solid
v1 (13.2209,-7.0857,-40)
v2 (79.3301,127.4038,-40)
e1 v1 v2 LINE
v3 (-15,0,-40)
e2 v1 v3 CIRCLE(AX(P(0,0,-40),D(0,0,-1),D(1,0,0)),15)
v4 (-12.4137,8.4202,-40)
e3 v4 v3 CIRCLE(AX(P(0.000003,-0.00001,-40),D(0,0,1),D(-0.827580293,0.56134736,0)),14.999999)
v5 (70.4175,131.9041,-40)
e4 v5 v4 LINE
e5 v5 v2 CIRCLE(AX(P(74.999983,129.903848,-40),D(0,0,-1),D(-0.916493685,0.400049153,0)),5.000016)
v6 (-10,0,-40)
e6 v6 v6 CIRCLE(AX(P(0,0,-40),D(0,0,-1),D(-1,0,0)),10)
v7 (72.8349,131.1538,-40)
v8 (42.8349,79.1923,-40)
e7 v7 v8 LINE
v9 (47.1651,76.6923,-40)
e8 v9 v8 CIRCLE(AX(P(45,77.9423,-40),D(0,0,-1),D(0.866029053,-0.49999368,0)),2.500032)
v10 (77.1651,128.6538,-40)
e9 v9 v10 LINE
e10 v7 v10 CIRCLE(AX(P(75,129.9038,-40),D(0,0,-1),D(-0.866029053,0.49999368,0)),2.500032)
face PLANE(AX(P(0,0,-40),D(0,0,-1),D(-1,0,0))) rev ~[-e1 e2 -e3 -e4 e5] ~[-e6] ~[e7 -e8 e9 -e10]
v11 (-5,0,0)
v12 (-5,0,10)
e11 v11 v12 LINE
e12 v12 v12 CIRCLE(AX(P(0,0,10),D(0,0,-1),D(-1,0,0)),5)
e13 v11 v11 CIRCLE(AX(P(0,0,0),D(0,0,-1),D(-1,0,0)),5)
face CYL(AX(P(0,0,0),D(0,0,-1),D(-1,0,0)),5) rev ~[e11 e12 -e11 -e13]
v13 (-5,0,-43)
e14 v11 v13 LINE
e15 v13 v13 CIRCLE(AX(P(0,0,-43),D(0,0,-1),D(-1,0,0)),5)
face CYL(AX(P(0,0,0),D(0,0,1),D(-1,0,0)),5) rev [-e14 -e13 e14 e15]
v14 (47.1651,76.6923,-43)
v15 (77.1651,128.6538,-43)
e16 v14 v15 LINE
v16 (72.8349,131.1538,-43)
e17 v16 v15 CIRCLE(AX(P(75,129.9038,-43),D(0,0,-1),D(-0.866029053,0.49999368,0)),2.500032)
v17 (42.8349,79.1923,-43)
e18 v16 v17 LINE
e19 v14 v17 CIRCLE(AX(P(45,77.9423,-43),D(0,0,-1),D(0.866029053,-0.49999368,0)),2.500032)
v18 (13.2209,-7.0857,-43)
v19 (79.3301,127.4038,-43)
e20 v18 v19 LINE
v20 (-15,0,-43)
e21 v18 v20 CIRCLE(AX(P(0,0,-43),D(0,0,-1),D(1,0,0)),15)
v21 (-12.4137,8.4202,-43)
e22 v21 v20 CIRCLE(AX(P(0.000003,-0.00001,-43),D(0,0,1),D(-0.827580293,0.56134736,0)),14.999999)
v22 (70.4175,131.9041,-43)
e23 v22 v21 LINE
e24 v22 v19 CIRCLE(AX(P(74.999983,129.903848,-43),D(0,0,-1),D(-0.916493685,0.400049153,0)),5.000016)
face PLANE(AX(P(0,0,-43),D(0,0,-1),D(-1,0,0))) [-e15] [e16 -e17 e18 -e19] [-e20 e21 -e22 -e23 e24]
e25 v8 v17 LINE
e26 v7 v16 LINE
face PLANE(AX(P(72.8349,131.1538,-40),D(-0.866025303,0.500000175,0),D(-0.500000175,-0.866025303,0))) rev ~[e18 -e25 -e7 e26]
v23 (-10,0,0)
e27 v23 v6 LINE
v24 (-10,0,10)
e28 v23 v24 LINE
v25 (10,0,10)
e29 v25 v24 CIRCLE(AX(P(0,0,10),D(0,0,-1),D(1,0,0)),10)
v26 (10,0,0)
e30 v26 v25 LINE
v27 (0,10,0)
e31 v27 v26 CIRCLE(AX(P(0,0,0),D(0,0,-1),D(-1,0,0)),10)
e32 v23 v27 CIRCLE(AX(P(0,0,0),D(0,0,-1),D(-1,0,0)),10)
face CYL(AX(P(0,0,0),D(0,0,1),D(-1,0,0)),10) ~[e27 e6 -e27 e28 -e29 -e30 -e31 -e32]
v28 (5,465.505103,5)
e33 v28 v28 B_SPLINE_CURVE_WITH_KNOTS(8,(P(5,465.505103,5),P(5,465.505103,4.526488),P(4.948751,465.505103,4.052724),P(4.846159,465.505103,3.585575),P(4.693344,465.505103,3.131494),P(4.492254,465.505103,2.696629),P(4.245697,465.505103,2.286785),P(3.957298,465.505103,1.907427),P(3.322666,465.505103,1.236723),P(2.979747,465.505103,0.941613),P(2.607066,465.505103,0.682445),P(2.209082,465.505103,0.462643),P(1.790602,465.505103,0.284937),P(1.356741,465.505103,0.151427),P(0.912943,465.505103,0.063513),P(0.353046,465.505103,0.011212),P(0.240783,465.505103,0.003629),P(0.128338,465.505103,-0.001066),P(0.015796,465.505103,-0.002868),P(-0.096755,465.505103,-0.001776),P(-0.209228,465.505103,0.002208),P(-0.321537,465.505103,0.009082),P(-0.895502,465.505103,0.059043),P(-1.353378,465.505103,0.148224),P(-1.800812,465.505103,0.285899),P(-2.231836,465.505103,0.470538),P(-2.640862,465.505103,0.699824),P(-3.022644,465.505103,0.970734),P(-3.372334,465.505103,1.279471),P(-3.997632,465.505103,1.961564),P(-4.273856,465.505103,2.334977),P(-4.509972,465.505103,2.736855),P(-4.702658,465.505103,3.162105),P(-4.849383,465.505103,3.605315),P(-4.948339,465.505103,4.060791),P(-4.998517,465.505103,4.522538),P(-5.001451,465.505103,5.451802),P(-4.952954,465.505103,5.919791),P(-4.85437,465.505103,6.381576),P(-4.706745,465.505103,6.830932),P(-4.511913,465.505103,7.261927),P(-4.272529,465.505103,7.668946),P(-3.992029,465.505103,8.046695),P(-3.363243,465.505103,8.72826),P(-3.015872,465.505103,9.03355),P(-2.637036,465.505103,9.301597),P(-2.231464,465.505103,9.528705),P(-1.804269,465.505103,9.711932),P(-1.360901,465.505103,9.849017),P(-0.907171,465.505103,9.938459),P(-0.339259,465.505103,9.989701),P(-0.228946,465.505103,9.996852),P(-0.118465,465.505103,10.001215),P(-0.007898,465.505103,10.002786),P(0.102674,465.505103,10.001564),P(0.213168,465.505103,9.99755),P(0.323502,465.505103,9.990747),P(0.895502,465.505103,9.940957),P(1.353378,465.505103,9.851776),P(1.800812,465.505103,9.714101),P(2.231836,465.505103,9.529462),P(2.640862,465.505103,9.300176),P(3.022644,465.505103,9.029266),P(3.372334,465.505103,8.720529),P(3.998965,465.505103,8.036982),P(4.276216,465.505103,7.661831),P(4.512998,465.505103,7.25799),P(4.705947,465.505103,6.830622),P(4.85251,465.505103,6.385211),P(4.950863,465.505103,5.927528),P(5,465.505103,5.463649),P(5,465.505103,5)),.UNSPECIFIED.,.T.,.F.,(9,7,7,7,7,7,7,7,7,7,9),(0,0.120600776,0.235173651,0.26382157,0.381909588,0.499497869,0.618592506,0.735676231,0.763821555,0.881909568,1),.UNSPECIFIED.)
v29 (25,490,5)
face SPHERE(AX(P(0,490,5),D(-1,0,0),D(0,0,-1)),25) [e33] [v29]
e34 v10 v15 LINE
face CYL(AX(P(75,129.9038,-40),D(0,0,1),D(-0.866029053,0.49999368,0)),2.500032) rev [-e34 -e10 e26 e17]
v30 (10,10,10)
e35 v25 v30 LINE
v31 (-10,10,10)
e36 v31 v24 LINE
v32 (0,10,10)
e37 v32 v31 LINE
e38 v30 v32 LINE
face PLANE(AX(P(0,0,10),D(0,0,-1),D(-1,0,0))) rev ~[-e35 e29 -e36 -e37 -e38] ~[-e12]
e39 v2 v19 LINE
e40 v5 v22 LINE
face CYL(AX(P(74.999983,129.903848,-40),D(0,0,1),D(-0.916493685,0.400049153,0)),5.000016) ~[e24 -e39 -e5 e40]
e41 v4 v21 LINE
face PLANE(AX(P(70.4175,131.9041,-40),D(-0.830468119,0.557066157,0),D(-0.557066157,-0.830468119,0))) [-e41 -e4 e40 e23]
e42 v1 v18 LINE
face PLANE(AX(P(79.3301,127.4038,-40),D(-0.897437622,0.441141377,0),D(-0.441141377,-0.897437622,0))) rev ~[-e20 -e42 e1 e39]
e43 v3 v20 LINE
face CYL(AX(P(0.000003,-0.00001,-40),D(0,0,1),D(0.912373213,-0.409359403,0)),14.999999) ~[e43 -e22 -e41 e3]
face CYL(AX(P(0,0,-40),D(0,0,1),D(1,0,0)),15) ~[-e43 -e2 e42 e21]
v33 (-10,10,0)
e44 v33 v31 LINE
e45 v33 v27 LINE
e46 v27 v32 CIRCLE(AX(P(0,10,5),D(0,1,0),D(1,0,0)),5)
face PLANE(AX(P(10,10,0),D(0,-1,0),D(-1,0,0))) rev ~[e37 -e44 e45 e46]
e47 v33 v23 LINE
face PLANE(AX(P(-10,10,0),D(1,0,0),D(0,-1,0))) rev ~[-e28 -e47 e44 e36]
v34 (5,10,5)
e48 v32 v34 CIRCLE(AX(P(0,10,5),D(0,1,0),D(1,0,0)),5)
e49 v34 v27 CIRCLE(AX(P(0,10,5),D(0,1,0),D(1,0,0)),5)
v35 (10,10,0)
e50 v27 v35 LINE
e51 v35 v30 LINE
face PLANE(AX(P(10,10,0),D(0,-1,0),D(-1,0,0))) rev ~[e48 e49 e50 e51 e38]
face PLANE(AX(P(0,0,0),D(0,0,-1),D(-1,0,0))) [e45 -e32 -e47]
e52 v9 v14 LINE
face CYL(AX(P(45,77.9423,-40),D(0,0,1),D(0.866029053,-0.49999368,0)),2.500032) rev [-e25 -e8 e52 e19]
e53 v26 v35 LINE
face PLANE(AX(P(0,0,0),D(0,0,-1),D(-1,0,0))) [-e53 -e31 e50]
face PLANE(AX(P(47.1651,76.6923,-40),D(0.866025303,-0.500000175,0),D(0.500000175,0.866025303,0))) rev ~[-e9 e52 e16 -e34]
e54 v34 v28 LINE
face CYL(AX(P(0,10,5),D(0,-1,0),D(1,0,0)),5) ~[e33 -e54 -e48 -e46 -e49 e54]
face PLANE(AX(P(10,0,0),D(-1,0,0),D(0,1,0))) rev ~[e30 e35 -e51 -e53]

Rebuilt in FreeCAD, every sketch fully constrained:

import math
import FreeCAD as App
import Part
import Sketcher
Q = App.Units.Quantity

doc = App.newDocument("Part")
body = doc.addObject("PartDesign::Body", "Body")

# Sketch on XY plane
sketch1 = body.newObject("Sketcher::SketchObject", "Sketch")
sketch1.AttachmentSupport = (doc.getObject("XY_Plane"), [""])
sketch1.MapMode = "FlatFace"
sketch1.addGeometry([
    Part.Circle(App.Vector(0, 0, 0), App.Vector(0, 0, 1), 10),
    Part.Circle(App.Vector(0, 0, 0), App.Vector(0, 0, 1), 5),
], False)
sketch1.addConstraint([
    Sketcher.Constraint("Coincident", 0, 3, -1, 1),
    Sketcher.Constraint("Coincident", 1, 3, -1, 1),
    Sketcher.Constraint("Diameter", 0, 20.0),
    Sketcher.Constraint("Diameter", 1, 10.0),
])
pad1 = body.newObject("PartDesign::Pad", "Pad")
pad1.Profile = sketch1
pad1.Length = 40
pad1.Reversed = True

# Sketch on XY plane
sketch2 = body.newObject("Sketcher::SketchObject", "Sketch001")
sketch2.AttachmentSupport = (doc.getObject("XY_Plane"), [""])
sketch2.MapMode = "FlatFace"
sketch2.AttachmentOffset = App.Placement(App.Vector(0, 0, -40), App.Rotation())
sketch2.addGeometry([
    Part.LineSegment(App.Vector(79.3, 127.4, 0), App.Vector(13.2, -7.1, 0)),  # 0
    Part.ArcOfCircle(Part.Circle(App.Vector(0, 0, 0), App.Vector(0, 0, 1), 15), math.radians(180), math.radians(332)),  # 1
    Part.ArcOfCircle(Part.Circle(App.Vector(0, 0, 0), App.Vector(0, 0, 1), 15), math.radians(146), math.radians(180)),  # 2
    Part.LineSegment(App.Vector(-12.4, 8.4, 0), App.Vector(70.4, 131.9, 0)),  # 3
    Part.ArcOfCircle(Part.Circle(App.Vector(75, 129.9, 0), App.Vector(0, 0, 1), 5), math.radians(-30), math.radians(156)),  # 4
    Part.Circle(App.Vector(0, 0, 0), App.Vector(0, 0, 1), 5),  # 5
    Part.ArcOfCircle(Part.Circle(App.Vector(75, 129.9, 0), App.Vector(0, 0, 1), 2.5), math.radians(-30), math.radians(150)),  # 6
    Part.LineSegment(App.Vector(72.8, 131.2, 0), App.Vector(42.8, 79.2, 0)),  # 7
    Part.ArcOfCircle(Part.Circle(App.Vector(45, 77.9, 0), App.Vector(0, 0, 1), 2.5), math.radians(150), math.radians(330)),  # 8
    Part.LineSegment(App.Vector(47.2, 76.7, 0), App.Vector(77.2, 128.7, 0)),  # 9
], False)
sketch2.addConstraint([
    Sketcher.Constraint("Coincident", 0, 2, 1, 2),
    Sketcher.Constraint("Tangent", 1, 1, 2, 2),
    Sketcher.Constraint("Coincident", 2, 1, 3, 1),
    Sketcher.Constraint("Coincident", 3, 2, 4, 2),
    Sketcher.Constraint("Coincident", 4, 1, 0, 1),
    Sketcher.Constraint("Tangent", 6, 2, 7, 1),
    Sketcher.Constraint("Tangent", 7, 2, 8, 1),
    Sketcher.Constraint("Tangent", 8, 2, 9, 1),
    Sketcher.Constraint("Tangent", 9, 2, 6, 1),
    Sketcher.Constraint("Coincident", 1, 3, -1, 1),
    Sketcher.Constraint("Coincident", 5, 3, -1, 1),
    Sketcher.Constraint("Coincident", 6, 3, 4, 3),
    Sketcher.Constraint("Equal", 1, 2),
    Sketcher.Constraint("Equal", 4, 5),
    Sketcher.Constraint("Equal", 6, 8),
    Sketcher.Constraint("PointOnObject", 1, 1, -1),
    Sketcher.Constraint("Diameter", 5, 10.0),
    Sketcher.Constraint("Radius", 1, 15.0),
    Sketcher.Constraint("Radius", 6, 2.5),
    Sketcher.Constraint("Angle", 7, Q("-120 deg")),
    Sketcher.Constraint("Distance", 7, 60.0),
    Sketcher.Constraint("DistanceX", -1, 1, 4, 3, 75.0),
    Sketcher.Constraint("DistanceY", 4, 1, 4, 3, 2.5),
    Sketcher.Constraint("Distance", 3, 148.692),
    Sketcher.Constraint("DistanceX", -1, 1, 0, 2, 13.221),
    Sketcher.Constraint("DistanceY", -1, 1, 3, 2, 131.904),
    Sketcher.Constraint("DistanceY", 0, 2, 8, 3, 85.028),
])
pad2 = body.newObject("PartDesign::Pad", "Pad001")
pad2.Profile = sketch2
pad2.Length = 3
pad2.Reversed = True

# Sketch on XY plane
sketch3 = body.newObject("Sketcher::SketchObject", "Sketch002")
sketch3.AttachmentSupport = (doc.getObject("XY_Plane"), [""])
sketch3.MapMode = "FlatFace"
sketch3.addGeometry([
    Part.ArcOfCircle(Part.Circle(App.Vector(0, 0, 0), App.Vector(0, 0, 1), 10), math.radians(180), math.radians(360)),  # 0
    Part.LineSegment(App.Vector(-10, 0, 0), App.Vector(-10, 10, 0)),  # 1
    Part.LineSegment(App.Vector(-10, 10, 0), App.Vector(10, 10, 0)),  # 2
    Part.LineSegment(App.Vector(10, 10, 0), App.Vector(10, 0, 0)),  # 3
    Part.Circle(App.Vector(0, 0, 0), App.Vector(0, 0, 1), 5),  # 4
], False)
sketch3.addConstraint([
    Sketcher.Constraint("Tangent", 0, 1, 1, 1),
    Sketcher.Constraint("Coincident", 1, 2, 2, 1),
    Sketcher.Constraint("Coincident", 2, 2, 3, 1),
    Sketcher.Constraint("Tangent", 3, 2, 0, 2),
    Sketcher.Constraint("Vertical", 1),
    Sketcher.Constraint("Horizontal", 2),
    Sketcher.Constraint("Vertical", 3),
    Sketcher.Constraint("Coincident", 0, 3, -1, 1),
    Sketcher.Constraint("Coincident", 4, 3, -1, 1),
    Sketcher.Constraint("Diameter", 4, 10.0),
    Sketcher.Constraint("Radius", 0, 10.0),
    Sketcher.Constraint("DistanceY", 1, 1, 1, 2, 10.0),
])
pad3 = body.newObject("PartDesign::Pad", "Pad002")
pad3.Profile = sketch3
pad3.Length = 10

# Sketch on XZ plane
sketch4 = body.newObject("Sketcher::SketchObject", "Sketch003")
sketch4.AttachmentSupport = (doc.getObject("XZ_Plane"), [""])
sketch4.MapMode = "FlatFace"
sketch4.AttachmentOffset = App.Placement(App.Vector(0, 0, -10), App.Rotation())
sketch4.addGeometry(Part.Circle(App.Vector(0, 5, 0), App.Vector(0, 0, 1), 5), False)
sketch4.addConstraint([
    Sketcher.Constraint("PointOnObject", 0, 3, -2),
    Sketcher.Constraint("Diameter", 0, 10.0),
    Sketcher.Constraint("DistanceY", -1, 1, 0, 3, 5.0),
])
pad4 = body.newObject("PartDesign::Pad", "Pad003")
pad4.Profile = sketch4
pad4.Length = 480
pad4.Reversed = True

# Sketch on XZ plane
sketch5 = body.newObject("Sketcher::SketchObject", "Sketch004")
sketch5.AttachmentSupport = (doc.getObject("XZ_Plane"), [""])
sketch5.MapMode = "FlatFace"
sketch5.AttachmentOffset = App.Placement(App.Vector(0, 0, -490), App.Rotation())
sketch5.addGeometry([
    Part.LineSegment(App.Vector(-25, 5, 0), App.Vector(25, 5, 0)),
    Part.ArcOfCircle(Part.Circle(App.Vector(0, 5, 0), App.Vector(0, 0, 1), 25), math.radians(180), math.radians(360)),
], False)
sketch5.addGeometry(Part.LineSegment(App.Vector(25, 5, 0), App.Vector(-25, 5, 0)), True)  # axis
sketch5.addConstraint([
    Sketcher.Constraint("Coincident", 0, 1, 1, 1),
    Sketcher.Constraint("Coincident", 1, 2, 0, 2),
    Sketcher.Constraint("Horizontal", 0),
    Sketcher.Constraint("Horizontal", 2),
    Sketcher.Constraint("Coincident", 2, 1, 1, 2),
    Sketcher.Constraint("PointOnObject", 1, 3, -2),
    Sketcher.Constraint("Horizontal", 1, 3, 0, 1),
    Sketcher.Constraint("Equal", 0, 2),
    Sketcher.Constraint("Radius", 1, 25.0),
    Sketcher.Constraint("DistanceY", -1, 1, 1, 3, 5.0),
])
revolution = body.newObject("PartDesign::Revolution", "Revolution")
revolution.Profile = sketch5
revolution.ReferenceAxis = (sketch5, ["Axis0"])
revolution.Angle = 360

doc.recompute()
